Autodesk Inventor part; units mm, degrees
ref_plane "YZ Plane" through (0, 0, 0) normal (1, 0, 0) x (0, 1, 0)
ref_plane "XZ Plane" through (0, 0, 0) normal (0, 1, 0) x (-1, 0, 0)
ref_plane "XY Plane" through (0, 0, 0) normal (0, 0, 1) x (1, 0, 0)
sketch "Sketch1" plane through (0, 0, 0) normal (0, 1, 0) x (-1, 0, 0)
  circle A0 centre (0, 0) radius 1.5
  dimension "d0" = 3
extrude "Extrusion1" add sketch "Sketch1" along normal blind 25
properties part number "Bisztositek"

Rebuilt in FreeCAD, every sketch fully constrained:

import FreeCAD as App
import Part
import Sketcher
Q = App.Units.Quantity

doc = App.newDocument("Part")
body = doc.addObject("PartDesign::Body", "Body")

# Sketch on XZ plane
sketch1 = doc.addObject("Sketcher::SketchObject", "Sketch")
body.addObject(sketch1)
sketch1.AttachmentSupport = (doc.XZ_Plane, [""])
sketch1.MapMode = "FlatFace"
sketch1.addGeometry(Part.Circle(App.Vector(0, 0, 0), App.Vector(0, 0, 1), 1.5), False)
sketch1.addConstraint(Sketcher.Constraint("Coincident", 0, 3, -1, 1))
sketch1.addConstraint(Sketcher.Constraint("Diameter", 0, Q("3 mm")))
pad1 = doc.addObject("PartDesign::Pad", "Pad")
body.addObject(pad1)
pad1.Profile = sketch1
pad1.Length = 25
pad1.Reversed = True

doc.recompute()
